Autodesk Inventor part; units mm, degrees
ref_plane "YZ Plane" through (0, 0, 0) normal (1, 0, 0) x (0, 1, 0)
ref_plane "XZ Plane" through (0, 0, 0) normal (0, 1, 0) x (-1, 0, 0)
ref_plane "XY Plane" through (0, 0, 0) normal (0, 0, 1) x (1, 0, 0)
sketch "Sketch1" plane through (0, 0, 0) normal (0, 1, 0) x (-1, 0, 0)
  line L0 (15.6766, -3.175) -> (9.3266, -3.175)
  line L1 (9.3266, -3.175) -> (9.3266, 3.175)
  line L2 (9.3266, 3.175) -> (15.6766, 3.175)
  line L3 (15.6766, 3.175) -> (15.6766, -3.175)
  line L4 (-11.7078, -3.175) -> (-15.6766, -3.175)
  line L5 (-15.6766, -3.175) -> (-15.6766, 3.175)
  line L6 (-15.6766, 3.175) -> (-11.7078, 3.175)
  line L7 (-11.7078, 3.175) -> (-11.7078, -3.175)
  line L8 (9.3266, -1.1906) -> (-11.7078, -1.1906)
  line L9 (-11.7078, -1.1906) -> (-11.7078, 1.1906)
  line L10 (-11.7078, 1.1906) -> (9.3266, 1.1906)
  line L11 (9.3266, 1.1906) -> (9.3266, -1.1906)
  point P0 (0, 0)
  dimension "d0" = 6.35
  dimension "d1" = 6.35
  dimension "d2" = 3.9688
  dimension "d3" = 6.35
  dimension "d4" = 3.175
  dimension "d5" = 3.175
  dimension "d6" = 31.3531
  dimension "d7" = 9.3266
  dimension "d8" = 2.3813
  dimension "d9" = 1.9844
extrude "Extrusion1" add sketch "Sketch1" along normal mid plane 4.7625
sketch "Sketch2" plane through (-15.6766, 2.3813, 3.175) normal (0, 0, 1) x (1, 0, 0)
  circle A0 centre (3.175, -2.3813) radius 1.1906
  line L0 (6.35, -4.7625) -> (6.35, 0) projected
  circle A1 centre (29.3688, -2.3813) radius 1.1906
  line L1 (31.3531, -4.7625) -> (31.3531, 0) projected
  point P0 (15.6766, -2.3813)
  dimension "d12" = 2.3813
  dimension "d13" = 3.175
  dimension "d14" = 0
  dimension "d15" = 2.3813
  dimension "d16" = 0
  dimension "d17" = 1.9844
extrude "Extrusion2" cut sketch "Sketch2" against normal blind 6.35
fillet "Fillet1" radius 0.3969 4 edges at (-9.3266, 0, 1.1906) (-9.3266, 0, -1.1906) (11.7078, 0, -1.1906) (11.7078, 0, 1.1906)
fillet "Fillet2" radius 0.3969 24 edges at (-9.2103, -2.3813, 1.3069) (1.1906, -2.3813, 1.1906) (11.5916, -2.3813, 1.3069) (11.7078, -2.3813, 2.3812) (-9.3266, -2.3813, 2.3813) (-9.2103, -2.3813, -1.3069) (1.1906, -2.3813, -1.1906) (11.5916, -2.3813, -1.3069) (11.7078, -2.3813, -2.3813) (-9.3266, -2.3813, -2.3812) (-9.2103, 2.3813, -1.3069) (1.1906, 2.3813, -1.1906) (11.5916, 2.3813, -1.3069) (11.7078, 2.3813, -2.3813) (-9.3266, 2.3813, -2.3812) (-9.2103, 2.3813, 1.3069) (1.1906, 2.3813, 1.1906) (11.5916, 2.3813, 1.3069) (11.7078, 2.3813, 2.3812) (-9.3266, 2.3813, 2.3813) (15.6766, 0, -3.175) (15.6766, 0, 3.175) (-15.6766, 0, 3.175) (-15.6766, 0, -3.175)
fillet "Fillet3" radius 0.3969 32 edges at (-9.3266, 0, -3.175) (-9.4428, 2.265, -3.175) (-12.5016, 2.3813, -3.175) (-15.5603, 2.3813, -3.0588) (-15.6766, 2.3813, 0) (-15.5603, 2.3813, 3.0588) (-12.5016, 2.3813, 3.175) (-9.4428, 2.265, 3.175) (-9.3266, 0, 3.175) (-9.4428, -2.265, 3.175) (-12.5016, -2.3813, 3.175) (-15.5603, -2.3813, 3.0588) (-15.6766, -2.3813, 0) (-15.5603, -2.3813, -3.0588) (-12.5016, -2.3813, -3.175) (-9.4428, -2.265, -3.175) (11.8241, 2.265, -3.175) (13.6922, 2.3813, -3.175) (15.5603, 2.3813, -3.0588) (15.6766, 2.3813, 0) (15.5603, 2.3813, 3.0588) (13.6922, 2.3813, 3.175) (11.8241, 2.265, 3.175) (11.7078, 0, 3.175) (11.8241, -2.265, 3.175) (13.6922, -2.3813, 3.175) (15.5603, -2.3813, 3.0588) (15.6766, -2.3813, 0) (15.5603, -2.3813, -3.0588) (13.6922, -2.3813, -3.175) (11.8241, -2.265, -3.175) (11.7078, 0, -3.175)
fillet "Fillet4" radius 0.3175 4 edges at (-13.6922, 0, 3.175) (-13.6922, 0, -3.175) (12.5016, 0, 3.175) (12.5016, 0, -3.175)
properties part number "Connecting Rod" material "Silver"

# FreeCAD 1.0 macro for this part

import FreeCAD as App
import Part
import Sketcher
from FreeCAD import Vector
Q = App.Units.Quantity


def edges_at(feature, points):
    """Names of the edges that pass closest to the given points."""
    edges = feature.Shape.Edges
    near = lambda p: min(range(len(edges)), key=lambda i: edges[i].distToShape(Part.Vertex(*p))[0])
    return sorted({f"Edge{near(p) + 1}" for p in points})

doc = App.newDocument("Part")
body = doc.addObject("PartDesign::Body", "Body")

sketch1 = doc.addObject("Sketcher::SketchObject", "Sketch")
body.addObject(sketch1)
sketch1.AttachmentSupport = (doc.XZ_Plane, [""])
sketch1.MapMode = "FlatFace"
sketch1.addGeometry(Part.LineSegment(Vector(-9.3, -3.2, 0), Vector(-15.7, -3.2, 0)), False)
sketch1.addGeometry(Part.LineSegment(Vector(-15.7, -3.2, 0), Vector(-15.7, 3.2, 0)), False)
sketch1.addGeometry(Part.LineSegment(Vector(-15.7, 3.2, 0), Vector(-9.3, 3.2, 0)), False)
sketch1.addGeometry(Part.LineSegment(Vector(-9.3, 3.2, 0), Vector(-9.3, 1.2, 0)), False)
sketch1.addGeometry(Part.LineSegment(Vector(-9.3, 1.2, 0), Vector(11.7, 1.2, 0)), False)
sketch1.addGeometry(Part.LineSegment(Vector(11.7, 1.2, 0), Vector(11.7, 3.2, 0)), False)
sketch1.addGeometry(Part.LineSegment(Vector(11.7, 3.2, 0), Vector(15.7, 3.2, 0)), False)
sketch1.addGeometry(Part.LineSegment(Vector(15.7, 3.2, 0), Vector(15.7, -3.2, 0)), False)
sketch1.addGeometry(Part.LineSegment(Vector(15.7, -3.2, 0), Vector(11.7, -3.2, 0)), False)
sketch1.addGeometry(Part.LineSegment(Vector(11.7, -3.2, 0), Vector(11.7, -1.2, 0)), False)
sketch1.addGeometry(Part.LineSegment(Vector(11.7, -1.2, 0), Vector(-9.3, -1.2, 0)), False)
sketch1.addGeometry(Part.LineSegment(Vector(-9.3, -1.2, 0), Vector(-9.3, -3.2, 0)), False)
sketch1.addConstraint(Sketcher.Constraint("Coincident", 0, 2, 1, 1))
sketch1.addConstraint(Sketcher.Constraint("Coincident", 1, 2, 2, 1))
sketch1.addConstraint(Sketcher.Constraint("Coincident", 2, 2, 3, 1))
sketch1.addConstraint(Sketcher.Constraint("Coincident", 3, 2, 4, 1))
sketch1.addConstraint(Sketcher.Constraint("Coincident", 4, 2, 5, 1))
sketch1.addConstraint(Sketcher.Constraint("Coincident", 5, 2, 6, 1))
sketch1.addConstraint(Sketcher.Constraint("Coincident", 6, 2, 7, 1))
sketch1.addConstraint(Sketcher.Constraint("Coincident", 7, 2, 8, 1))
sketch1.addConstraint(Sketcher.Constraint("Coincident", 8, 2, 9, 1))
sketch1.addConstraint(Sketcher.Constraint("Coincident", 9, 2, 10, 1))
sketch1.addConstraint(Sketcher.Constraint("Coincident", 10, 2, 11, 1))
sketch1.addConstraint(Sketcher.Constraint("Coincident", 11, 2, 0, 1))
sketch1.addConstraint(Sketcher.Constraint("Horizontal", 0))
sketch1.addConstraint(Sketcher.Constraint("Vertical", 1))
sketch1.addConstraint(Sketcher.Constraint("Horizontal", 2))
sketch1.addConstraint(Sketcher.Constraint("Vertical", 3))
sketch1.addConstraint(Sketcher.Constraint("Horizontal", 4))
sketch1.addConstraint(Sketcher.Constraint("Vertical", 5))
sketch1.addConstraint(Sketcher.Constraint("Horizontal", 6))
sketch1.addConstraint(Sketcher.Constraint("Vertical", 7))
sketch1.addConstraint(Sketcher.Constraint("Horizontal", 8))
sketch1.addConstraint(Sketcher.Constraint("Vertical", 9))
sketch1.addConstraint(Sketcher.Constraint("Horizontal", 10))
sketch1.addConstraint(Sketcher.Constraint("Vertical", 11))
sketch1.addConstraint(Sketcher.Constraint("Symmetric", 0, 2, 6, 2, -1, 1))
sketch1.addConstraint(Sketcher.Constraint("Symmetric", 5, 2, 8, 2, -1))
sketch1.addConstraint(Sketcher.Constraint("Symmetric", 3, 2, 10, 2, -1))
sketch1.addConstraint(Sketcher.Constraint("Horizontal", 2, 2, 5, 2))
sketch1.addConstraint(Sketcher.Constraint("Equal", 2, 1))
sketch1.addConstraint(Sketcher.Constraint("DistanceX", 0, 2, 0, 1, Q("0.25 in")))
sketch1.addConstraint(Sketcher.Constraint("DistanceX", 6, 1, 6, 2, Q("0.156252 in")))
sketch1.addConstraint(Sketcher.Constraint("DistanceY", 3, 2, 3, 1, Q("0.078126 in")))
sketch1.addConstraint(Sketcher.Constraint("DistanceX", 1, 2, 6, 2, Q("1.234378 in")))
pad1 = doc.addObject("PartDesign::Pad", "Pad")
body.addObject(pad1)
pad1.Profile = sketch1
pad1.Length = Q("0.1875 in")
pad1.Midplane = True

sketch2 = doc.addObject("Sketcher::SketchObject", "Sketch001")
body.addObject(sketch2)
sketch2.AttachmentSupport = (doc.XY_Plane, [""])
sketch2.MapMode = "FlatFace"
sketch2.AttachmentOffset = App.Placement(Vector(0, 0, 0.125 * 25.4), App.Rotation())
sketch2.addGeometry(Part.Circle(Vector(-12.5, 0, 0), Vector(0, 0, 1), 1.2), False)
sketch2.addGeometry(Part.Circle(Vector(13.7, 0, 0), Vector(0, 0, 1), 1.2), False)
sketch2.addConstraint(Sketcher.Constraint("Equal", 0, 1))
sketch2.addConstraint(Sketcher.Constraint("PointOnObject", 0, 3, -1))
sketch2.addConstraint(Sketcher.Constraint("PointOnObject", 1, 3, -1))
sketch2.addConstraint(Sketcher.Constraint("Diameter", 0, Q("0.093748 in")))
sketch2.addConstraint(Sketcher.Constraint("DistanceX", 0, 3, 1, 3, Q("1.031252 in")))
sketch2.addConstraint(Sketcher.Constraint("DistanceX", 0, 3, -1, 1, Q("0.4922 in")))
pocket1 = doc.addObject("PartDesign::Pocket", "Pocket")
body.addObject(pocket1)
pocket1.Profile = sketch2
pocket1.Length = Q("0.25 in")
doc.recompute()

fillet = doc.addObject("PartDesign::Fillet", "Fillet")
body.addObject(fillet)
fillet.Base = (pocket1, edges_at(pocket1, [
    (-9.327, 0, 1.191),
    (-9.327, 0, -1.191),
    (11.708, 0, -1.191),
    (11.708, 0, 1.191),
]))
fillet.Radius = Q("0.015626 in")
doc.recompute()

fillet2 = doc.addObject("PartDesign::Fillet", "Fillet001")
body.addObject(fillet2)
fillet2.Base = (fillet, edges_at(fillet, [
    (-9.21, -2.381, 1.307),
    (1.191, -2.381, 1.191),
    (11.592, -2.381, 1.307),
    (11.708, -2.381, 2.381),
    (-9.327, -2.381, 2.381),
    (-9.21, -2.381, -1.307),
    (1.191, -2.381, -1.191),
    (11.592, -2.381, -1.307),
    (11.708, -2.381, -2.381),
    (-9.327, -2.381, -2.381),
    (-9.21, 2.381, -1.307),
    (1.191, 2.381, -1.191),
    (11.592, 2.381, -1.307),
    (11.708, 2.381, -2.381),
    (-9.327, 2.381, -2.381),
    (-9.21, 2.381, 1.307),
    (1.191, 2.381, 1.191),
    (11.592, 2.381, 1.307),
    (11.708, 2.381, 2.381),
    (-9.327, 2.381, 2.381),
    (15.677, 0, -3.175),
    (15.677, 0, 3.175),
    (-15.677, 0, 3.175),
    (-15.677, 0, -3.175),
]))
fillet2.Radius = Q("0.015626 in")
doc.recompute()

fillet3 = doc.addObject("PartDesign::Fillet", "Fillet002")
body.addObject(fillet3)
fillet3.Base = (fillet2, edges_at(fillet2, [
    (-9.327, 0, -3.175),
    (-9.443, 2.265, -3.175),
    (-12.502, 2.381, -3.175),
    (-15.56, 2.381, -3.059),
    (-15.677, 2.381, 0),
    (-15.56, 2.381, 3.059),
    (-12.502, 2.381, 3.175),
    (-9.443, 2.265, 3.175),
    (-9.327, 0, 3.175),
    (-9.443, -2.265, 3.175),
    (-12.502, -2.381, 3.175),
    (-15.56, -2.381, 3.059),
    (-15.677, -2.381, 0),
    (-15.56, -2.381, -3.059),
    (-12.502, -2.381, -3.175),
    (-9.443, -2.265, -3.175),
    (11.824, 2.265, -3.175),
    (13.692, 2.381, -3.175),
    (15.56, 2.381, -3.059),
    (15.677, 2.381, 0),
    (15.56, 2.381, 3.059),
    (13.692, 2.381, 3.175),
    (11.824, 2.265, 3.175),
    (11.708, 0, 3.175),
    (11.824, -2.265, 3.175),
    (13.692, -2.381, 3.175),
    (15.56, -2.381, 3.059),
    (15.677, -2.381, 0),
    (15.56, -2.381, -3.059),
    (13.692, -2.381, -3.175),
    (11.824, -2.265, -3.175),
    (11.708, 0, -3.175),
]))
fillet3.Radius = Q("0.015626 in")
doc.recompute()

fillet4 = doc.addObject("PartDesign::Fillet", "Fillet003")
body.addObject(fillet4)
fillet4.Base = (fillet3, edges_at(fillet3, [
    (-13.692, 0, 3.175),
    (-13.692, 0, -3.175),
    (12.502, 0, 3.175),
    (12.502, 0, -3.175),
]))
fillet4.Radius = Q("0.0125 in")

doc.recompute()
